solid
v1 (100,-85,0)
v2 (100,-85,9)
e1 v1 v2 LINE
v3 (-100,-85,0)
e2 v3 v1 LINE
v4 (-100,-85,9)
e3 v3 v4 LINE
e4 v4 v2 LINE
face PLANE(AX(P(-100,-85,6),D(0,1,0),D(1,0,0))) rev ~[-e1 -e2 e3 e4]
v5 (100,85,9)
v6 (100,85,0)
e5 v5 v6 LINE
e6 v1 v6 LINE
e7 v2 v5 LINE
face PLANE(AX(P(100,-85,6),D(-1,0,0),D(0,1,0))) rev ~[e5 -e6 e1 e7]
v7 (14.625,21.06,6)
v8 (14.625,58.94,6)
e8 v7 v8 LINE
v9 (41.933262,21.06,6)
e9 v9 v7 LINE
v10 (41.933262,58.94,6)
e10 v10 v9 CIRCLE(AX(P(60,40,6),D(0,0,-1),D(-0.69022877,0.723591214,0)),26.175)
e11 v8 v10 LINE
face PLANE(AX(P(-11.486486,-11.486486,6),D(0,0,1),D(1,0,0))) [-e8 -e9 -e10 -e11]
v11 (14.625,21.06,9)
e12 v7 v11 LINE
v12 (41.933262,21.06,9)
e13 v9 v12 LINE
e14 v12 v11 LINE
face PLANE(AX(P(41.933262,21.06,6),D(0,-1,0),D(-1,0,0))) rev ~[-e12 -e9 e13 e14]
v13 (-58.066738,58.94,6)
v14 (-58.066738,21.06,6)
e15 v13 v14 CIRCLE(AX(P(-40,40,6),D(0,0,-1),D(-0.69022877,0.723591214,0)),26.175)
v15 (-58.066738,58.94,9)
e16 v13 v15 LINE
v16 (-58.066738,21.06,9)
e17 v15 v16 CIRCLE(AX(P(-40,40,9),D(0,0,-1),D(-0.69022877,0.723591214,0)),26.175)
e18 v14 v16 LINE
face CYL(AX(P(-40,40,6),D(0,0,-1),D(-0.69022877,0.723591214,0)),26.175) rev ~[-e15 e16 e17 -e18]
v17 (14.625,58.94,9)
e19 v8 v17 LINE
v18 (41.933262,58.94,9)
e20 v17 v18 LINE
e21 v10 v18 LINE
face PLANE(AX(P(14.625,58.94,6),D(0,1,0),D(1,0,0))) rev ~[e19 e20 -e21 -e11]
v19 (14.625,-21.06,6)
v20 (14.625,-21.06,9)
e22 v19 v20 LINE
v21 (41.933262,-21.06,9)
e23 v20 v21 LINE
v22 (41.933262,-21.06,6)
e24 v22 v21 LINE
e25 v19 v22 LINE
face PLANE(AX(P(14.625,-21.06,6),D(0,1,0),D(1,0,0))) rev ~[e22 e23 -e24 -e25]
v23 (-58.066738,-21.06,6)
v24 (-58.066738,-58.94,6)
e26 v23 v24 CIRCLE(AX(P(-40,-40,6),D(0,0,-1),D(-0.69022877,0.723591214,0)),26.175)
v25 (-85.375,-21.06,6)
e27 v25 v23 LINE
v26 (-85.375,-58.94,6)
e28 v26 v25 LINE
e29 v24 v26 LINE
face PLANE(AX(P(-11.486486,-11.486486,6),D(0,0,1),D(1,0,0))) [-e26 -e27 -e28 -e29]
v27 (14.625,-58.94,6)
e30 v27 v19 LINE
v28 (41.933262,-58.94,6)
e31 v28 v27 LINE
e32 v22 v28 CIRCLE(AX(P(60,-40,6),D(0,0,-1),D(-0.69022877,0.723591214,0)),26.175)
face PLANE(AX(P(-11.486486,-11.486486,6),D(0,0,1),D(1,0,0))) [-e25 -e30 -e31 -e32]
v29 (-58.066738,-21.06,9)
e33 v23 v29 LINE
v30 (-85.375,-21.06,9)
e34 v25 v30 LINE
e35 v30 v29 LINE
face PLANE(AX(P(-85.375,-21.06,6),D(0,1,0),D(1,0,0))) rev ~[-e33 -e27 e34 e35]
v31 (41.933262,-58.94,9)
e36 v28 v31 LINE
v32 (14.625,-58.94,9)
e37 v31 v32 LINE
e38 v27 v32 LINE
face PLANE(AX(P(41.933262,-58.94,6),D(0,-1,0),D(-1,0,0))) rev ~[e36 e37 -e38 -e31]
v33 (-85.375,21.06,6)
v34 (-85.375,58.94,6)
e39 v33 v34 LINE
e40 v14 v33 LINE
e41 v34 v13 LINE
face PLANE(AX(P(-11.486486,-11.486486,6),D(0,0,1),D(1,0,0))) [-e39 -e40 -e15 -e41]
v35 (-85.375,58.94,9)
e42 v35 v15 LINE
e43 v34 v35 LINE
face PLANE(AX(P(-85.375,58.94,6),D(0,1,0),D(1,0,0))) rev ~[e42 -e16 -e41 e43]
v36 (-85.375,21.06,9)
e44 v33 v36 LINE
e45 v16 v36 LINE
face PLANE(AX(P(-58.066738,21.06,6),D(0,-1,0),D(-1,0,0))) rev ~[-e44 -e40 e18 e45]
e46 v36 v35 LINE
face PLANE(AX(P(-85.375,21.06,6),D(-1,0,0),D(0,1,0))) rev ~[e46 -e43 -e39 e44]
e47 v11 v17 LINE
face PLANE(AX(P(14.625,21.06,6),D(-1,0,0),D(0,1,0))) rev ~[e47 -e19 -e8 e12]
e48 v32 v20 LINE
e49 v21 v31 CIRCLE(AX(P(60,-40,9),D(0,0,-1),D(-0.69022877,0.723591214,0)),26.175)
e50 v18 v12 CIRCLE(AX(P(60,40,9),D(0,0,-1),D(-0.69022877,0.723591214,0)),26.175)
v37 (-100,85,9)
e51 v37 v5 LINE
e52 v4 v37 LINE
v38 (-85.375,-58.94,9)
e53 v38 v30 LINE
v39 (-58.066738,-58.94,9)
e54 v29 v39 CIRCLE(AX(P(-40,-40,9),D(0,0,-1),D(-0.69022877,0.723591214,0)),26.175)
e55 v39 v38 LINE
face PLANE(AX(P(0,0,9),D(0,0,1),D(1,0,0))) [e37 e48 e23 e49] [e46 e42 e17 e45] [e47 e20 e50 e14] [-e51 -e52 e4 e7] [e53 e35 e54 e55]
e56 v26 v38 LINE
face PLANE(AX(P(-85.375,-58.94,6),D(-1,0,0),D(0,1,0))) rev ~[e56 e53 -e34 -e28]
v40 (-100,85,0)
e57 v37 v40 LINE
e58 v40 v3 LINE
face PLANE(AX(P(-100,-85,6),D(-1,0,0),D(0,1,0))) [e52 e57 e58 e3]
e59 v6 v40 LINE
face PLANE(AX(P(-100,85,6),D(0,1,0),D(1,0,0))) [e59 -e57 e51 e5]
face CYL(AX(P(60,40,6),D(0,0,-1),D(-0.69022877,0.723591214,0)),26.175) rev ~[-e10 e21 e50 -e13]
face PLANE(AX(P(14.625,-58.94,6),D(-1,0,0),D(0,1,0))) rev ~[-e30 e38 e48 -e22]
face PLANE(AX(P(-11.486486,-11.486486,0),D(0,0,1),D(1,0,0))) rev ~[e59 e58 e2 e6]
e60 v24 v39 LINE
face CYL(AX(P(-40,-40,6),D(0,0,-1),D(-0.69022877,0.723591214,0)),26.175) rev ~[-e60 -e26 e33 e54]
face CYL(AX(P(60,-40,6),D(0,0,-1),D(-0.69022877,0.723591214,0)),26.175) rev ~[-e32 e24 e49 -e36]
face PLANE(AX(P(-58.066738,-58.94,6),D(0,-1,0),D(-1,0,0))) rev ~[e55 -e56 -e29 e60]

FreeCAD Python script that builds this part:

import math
import FreeCAD as App
import Part
import Sketcher
from FreeCAD import Vector
Q = App.Units.Quantity


def add_polygon(sketch, points):
    """Adds a closed chain of lines whose ends are joined by coincident constraints."""
    first, n = sketch.GeometryCount, len(points)
    for a, b in zip(points, points[1:] + points[:1]):
        sketch.addGeometry(Part.LineSegment(App.Vector(*a, 0), App.Vector(*b, 0)), False)
    for i in range(n):
        sketch.addConstraint(Sketcher.Constraint("Coincident", first + i, 2, first + (i + 1) % n, 1))

doc = App.newDocument("Part")
body = doc.addObject("PartDesign::Body", "Body")

# Sketch on XY plane
sketch1 = body.newObject("Sketcher::SketchObject", "Sketch")
sketch1.AttachmentSupport = (doc.getObject("XY_Plane"), [""])
sketch1.MapMode = "FlatFace"
add_polygon(sketch1, [(-100, 85), (-100, -85), (100, -85), (100, 85)])  # lines 0-3
sketch1.addConstraint([
    Sketcher.Constraint("Vertical", 0),
    Sketcher.Constraint("Horizontal", 1),
    Sketcher.Constraint("Vertical", 2),
    Sketcher.Constraint("Horizontal", 3),
    Sketcher.Constraint("Symmetric", 0, 2, 2, 2, -1, 1),
    Sketcher.Constraint("DistanceX", 1, 1, 1, 2, Q("200 mm")),
    Sketcher.Constraint("DistanceY", 0, 2, 0, 1, Q("170 mm")),
])
pad1 = body.newObject("PartDesign::Pad", "Pad")
pad1.Profile = sketch1
pad1.Length = 6

# Sketch on XY plane
sketch2 = body.newObject("Sketcher::SketchObject", "Sketch001")
sketch2.AttachmentSupport = (doc.getObject("XY_Plane"), [""])
sketch2.MapMode = "FlatFace"
sketch2.AttachmentOffset = App.Placement(Vector(0, 0, 6), App.Rotation())
add_polygon(sketch2, [(-100, 85), (-100, -85), (100, -85), (100, 85)])  # lines 0-3
sketch2.addGeometry(Part.LineSegment(Vector(-85, -21, 0), Vector(-58, -21, 0)), False)  # 4
sketch2.addGeometry(Part.ArcOfCircle(Part.Circle(Vector(-40, -40, 0), Vector(0, 0, 1), 26), math.radians(-134), math.radians(134)), False)  # 5
sketch2.addGeometry(Part.LineSegment(Vector(-58, -59, 0), Vector(-85, -59, 0)), False)  # 6
sketch2.addGeometry(Part.LineSegment(Vector(-85, -59, 0), Vector(-85, -21, 0)), False)  # 7
sketch2.addGeometry(Part.LineSegment(Vector(15, -21, 0), Vector(42, -21, 0)), False)  # 8
sketch2.addGeometry(Part.ArcOfCircle(Part.Circle(Vector(60, -40, 0), Vector(0, 0, 1), 26), math.radians(-134), math.radians(134)), False)  # 9
sketch2.addGeometry(Part.LineSegment(Vector(42, -59, 0), Vector(15, -59, 0)), False)  # 10
sketch2.addGeometry(Part.LineSegment(Vector(15, -59, 0), Vector(15, -21, 0)), False)  # 11
sketch2.addGeometry(Part.LineSegment(Vector(-85, 59, 0), Vector(-58, 59, 0)), False)  # 12
sketch2.addGeometry(Part.ArcOfCircle(Part.Circle(Vector(-40, 40, 0), Vector(0, 0, 1), 26), math.radians(-134), math.radians(134)), False)  # 13
sketch2.addGeometry(Part.LineSegment(Vector(-58, 21, 0), Vector(-85, 21, 0)), False)  # 14
sketch2.addGeometry(Part.LineSegment(Vector(-85, 21, 0), Vector(-85, 59, 0)), False)  # 15
sketch2.addGeometry(Part.LineSegment(Vector(15, 59, 0), Vector(42, 59, 0)), False)  # 16
sketch2.addGeometry(Part.ArcOfCircle(Part.Circle(Vector(60, 40, 0), Vector(0, 0, 1), 26), math.radians(-134), math.radians(134)), False)  # 17
sketch2.addGeometry(Part.LineSegment(Vector(42, 21, 0), Vector(15, 21, 0)), False)  # 18
sketch2.addGeometry(Part.LineSegment(Vector(15, 21, 0), Vector(15, 59, 0)), False)  # 19
sketch2.addConstraint([
    Sketcher.Constraint("Coincident", 4, 2, 5, 2),
    Sketcher.Constraint("Coincident", 5, 1, 6, 1),
    Sketcher.Constraint("Coincident", 6, 2, 7, 1),
    Sketcher.Constraint("Coincident", 7, 2, 4, 1),
    Sketcher.Constraint("Coincident", 8, 2, 9, 2),
    Sketcher.Constraint("Coincident", 9, 1, 10, 1),
    Sketcher.Constraint("Coincident", 10, 2, 11, 1),
    Sketcher.Constraint("Coincident", 11, 2, 8, 1),
    Sketcher.Constraint("Coincident", 12, 2, 13, 2),
    Sketcher.Constraint("Coincident", 13, 1, 14, 1),
    Sketcher.Constraint("Coincident", 14, 2, 15, 1),
    Sketcher.Constraint("Coincident", 15, 2, 12, 1),
    Sketcher.Constraint("Coincident", 16, 2, 17, 2),
    Sketcher.Constraint("Coincident", 17, 1, 18, 1),
    Sketcher.Constraint("Coincident", 18, 2, 19, 1),
    Sketcher.Constraint("Coincident", 19, 2, 16, 1),
    Sketcher.Constraint("Vertical", 0),
    Sketcher.Constraint("Horizontal", 1),
    Sketcher.Constraint("Vertical", 2),
    Sketcher.Constraint("Horizontal", 3),
    Sketcher.Constraint("Horizontal", 4),
    Sketcher.Constraint("Horizontal", 6),
    Sketcher.Constraint("Vertical", 7),
    Sketcher.Constraint("Horizontal", 8),
    Sketcher.Constraint("Horizontal", 10),
    Sketcher.Constraint("Vertical", 11),
    Sketcher.Constraint("Horizontal", 12),
    Sketcher.Constraint("Horizontal", 14),
    Sketcher.Constraint("Vertical", 15),
    Sketcher.Constraint("Horizontal", 16),
    Sketcher.Constraint("Horizontal", 18),
    Sketcher.Constraint("Vertical", 19),
    Sketcher.Constraint("Equal", 5, 9),
    Sketcher.Constraint("Equal", 9, 13),
    Sketcher.Constraint("Equal", 13, 17),
    Sketcher.Constraint("Symmetric", 0, 2, 2, 2, -1, 1),
    Sketcher.Constraint("Symmetric", 5, 3, 13, 3, -1),
    Sketcher.Constraint("Symmetric", 9, 3, 17, 3, -1),
    Sketcher.Constraint("Symmetric", 7, 2, 14, 2, -1),
    Sketcher.Constraint("Symmetric", 11, 2, 18, 2, -1),
    Sketcher.Constraint("Horizontal", 5, 3, 9, 3),
    Sketcher.Constraint("Horizontal", 7, 2, 8, 2),
    Sketcher.Constraint("Horizontal", 6, 2, 9, 1),
    Sketcher.Constraint("Horizontal", 15, 2, 16, 2),
    Sketcher.Constraint("Vertical", 4, 2, 5, 1),
    Sketcher.Constraint("Vertical", 5, 1, 12, 2),
    Sketcher.Constraint("Equal", 6, 8),
    Sketcher.Constraint("DistanceX", 1, 1, 1, 2, Q("200 mm")),
    Sketcher.Constraint("DistanceY", 0, 2, 0, 1, Q("170 mm")),
    Sketcher.Constraint("DistanceX", 5, 3, -1, 1, Q("40 mm")),
    Sketcher.Constraint("DistanceY", 5, 3, -1, 1, Q("40 mm")),
    Sketcher.Constraint("DistanceX", -1, 1, 9, 3, Q("60 mm")),
    Sketcher.Constraint("Radius", 5, Q("26.175 mm")),
    Sketcher.Constraint("DistanceY", 7, 1, 7, 2, Q("37.88 mm")),
    Sketcher.Constraint("DistanceX", 6, 2, -1, 1, Q("85.375 mm")),
])
pad2 = body.newObject("PartDesign::Pad", "Pad001")
pad2.Profile = sketch2
pad2.Length = 3

doc.recompute()
